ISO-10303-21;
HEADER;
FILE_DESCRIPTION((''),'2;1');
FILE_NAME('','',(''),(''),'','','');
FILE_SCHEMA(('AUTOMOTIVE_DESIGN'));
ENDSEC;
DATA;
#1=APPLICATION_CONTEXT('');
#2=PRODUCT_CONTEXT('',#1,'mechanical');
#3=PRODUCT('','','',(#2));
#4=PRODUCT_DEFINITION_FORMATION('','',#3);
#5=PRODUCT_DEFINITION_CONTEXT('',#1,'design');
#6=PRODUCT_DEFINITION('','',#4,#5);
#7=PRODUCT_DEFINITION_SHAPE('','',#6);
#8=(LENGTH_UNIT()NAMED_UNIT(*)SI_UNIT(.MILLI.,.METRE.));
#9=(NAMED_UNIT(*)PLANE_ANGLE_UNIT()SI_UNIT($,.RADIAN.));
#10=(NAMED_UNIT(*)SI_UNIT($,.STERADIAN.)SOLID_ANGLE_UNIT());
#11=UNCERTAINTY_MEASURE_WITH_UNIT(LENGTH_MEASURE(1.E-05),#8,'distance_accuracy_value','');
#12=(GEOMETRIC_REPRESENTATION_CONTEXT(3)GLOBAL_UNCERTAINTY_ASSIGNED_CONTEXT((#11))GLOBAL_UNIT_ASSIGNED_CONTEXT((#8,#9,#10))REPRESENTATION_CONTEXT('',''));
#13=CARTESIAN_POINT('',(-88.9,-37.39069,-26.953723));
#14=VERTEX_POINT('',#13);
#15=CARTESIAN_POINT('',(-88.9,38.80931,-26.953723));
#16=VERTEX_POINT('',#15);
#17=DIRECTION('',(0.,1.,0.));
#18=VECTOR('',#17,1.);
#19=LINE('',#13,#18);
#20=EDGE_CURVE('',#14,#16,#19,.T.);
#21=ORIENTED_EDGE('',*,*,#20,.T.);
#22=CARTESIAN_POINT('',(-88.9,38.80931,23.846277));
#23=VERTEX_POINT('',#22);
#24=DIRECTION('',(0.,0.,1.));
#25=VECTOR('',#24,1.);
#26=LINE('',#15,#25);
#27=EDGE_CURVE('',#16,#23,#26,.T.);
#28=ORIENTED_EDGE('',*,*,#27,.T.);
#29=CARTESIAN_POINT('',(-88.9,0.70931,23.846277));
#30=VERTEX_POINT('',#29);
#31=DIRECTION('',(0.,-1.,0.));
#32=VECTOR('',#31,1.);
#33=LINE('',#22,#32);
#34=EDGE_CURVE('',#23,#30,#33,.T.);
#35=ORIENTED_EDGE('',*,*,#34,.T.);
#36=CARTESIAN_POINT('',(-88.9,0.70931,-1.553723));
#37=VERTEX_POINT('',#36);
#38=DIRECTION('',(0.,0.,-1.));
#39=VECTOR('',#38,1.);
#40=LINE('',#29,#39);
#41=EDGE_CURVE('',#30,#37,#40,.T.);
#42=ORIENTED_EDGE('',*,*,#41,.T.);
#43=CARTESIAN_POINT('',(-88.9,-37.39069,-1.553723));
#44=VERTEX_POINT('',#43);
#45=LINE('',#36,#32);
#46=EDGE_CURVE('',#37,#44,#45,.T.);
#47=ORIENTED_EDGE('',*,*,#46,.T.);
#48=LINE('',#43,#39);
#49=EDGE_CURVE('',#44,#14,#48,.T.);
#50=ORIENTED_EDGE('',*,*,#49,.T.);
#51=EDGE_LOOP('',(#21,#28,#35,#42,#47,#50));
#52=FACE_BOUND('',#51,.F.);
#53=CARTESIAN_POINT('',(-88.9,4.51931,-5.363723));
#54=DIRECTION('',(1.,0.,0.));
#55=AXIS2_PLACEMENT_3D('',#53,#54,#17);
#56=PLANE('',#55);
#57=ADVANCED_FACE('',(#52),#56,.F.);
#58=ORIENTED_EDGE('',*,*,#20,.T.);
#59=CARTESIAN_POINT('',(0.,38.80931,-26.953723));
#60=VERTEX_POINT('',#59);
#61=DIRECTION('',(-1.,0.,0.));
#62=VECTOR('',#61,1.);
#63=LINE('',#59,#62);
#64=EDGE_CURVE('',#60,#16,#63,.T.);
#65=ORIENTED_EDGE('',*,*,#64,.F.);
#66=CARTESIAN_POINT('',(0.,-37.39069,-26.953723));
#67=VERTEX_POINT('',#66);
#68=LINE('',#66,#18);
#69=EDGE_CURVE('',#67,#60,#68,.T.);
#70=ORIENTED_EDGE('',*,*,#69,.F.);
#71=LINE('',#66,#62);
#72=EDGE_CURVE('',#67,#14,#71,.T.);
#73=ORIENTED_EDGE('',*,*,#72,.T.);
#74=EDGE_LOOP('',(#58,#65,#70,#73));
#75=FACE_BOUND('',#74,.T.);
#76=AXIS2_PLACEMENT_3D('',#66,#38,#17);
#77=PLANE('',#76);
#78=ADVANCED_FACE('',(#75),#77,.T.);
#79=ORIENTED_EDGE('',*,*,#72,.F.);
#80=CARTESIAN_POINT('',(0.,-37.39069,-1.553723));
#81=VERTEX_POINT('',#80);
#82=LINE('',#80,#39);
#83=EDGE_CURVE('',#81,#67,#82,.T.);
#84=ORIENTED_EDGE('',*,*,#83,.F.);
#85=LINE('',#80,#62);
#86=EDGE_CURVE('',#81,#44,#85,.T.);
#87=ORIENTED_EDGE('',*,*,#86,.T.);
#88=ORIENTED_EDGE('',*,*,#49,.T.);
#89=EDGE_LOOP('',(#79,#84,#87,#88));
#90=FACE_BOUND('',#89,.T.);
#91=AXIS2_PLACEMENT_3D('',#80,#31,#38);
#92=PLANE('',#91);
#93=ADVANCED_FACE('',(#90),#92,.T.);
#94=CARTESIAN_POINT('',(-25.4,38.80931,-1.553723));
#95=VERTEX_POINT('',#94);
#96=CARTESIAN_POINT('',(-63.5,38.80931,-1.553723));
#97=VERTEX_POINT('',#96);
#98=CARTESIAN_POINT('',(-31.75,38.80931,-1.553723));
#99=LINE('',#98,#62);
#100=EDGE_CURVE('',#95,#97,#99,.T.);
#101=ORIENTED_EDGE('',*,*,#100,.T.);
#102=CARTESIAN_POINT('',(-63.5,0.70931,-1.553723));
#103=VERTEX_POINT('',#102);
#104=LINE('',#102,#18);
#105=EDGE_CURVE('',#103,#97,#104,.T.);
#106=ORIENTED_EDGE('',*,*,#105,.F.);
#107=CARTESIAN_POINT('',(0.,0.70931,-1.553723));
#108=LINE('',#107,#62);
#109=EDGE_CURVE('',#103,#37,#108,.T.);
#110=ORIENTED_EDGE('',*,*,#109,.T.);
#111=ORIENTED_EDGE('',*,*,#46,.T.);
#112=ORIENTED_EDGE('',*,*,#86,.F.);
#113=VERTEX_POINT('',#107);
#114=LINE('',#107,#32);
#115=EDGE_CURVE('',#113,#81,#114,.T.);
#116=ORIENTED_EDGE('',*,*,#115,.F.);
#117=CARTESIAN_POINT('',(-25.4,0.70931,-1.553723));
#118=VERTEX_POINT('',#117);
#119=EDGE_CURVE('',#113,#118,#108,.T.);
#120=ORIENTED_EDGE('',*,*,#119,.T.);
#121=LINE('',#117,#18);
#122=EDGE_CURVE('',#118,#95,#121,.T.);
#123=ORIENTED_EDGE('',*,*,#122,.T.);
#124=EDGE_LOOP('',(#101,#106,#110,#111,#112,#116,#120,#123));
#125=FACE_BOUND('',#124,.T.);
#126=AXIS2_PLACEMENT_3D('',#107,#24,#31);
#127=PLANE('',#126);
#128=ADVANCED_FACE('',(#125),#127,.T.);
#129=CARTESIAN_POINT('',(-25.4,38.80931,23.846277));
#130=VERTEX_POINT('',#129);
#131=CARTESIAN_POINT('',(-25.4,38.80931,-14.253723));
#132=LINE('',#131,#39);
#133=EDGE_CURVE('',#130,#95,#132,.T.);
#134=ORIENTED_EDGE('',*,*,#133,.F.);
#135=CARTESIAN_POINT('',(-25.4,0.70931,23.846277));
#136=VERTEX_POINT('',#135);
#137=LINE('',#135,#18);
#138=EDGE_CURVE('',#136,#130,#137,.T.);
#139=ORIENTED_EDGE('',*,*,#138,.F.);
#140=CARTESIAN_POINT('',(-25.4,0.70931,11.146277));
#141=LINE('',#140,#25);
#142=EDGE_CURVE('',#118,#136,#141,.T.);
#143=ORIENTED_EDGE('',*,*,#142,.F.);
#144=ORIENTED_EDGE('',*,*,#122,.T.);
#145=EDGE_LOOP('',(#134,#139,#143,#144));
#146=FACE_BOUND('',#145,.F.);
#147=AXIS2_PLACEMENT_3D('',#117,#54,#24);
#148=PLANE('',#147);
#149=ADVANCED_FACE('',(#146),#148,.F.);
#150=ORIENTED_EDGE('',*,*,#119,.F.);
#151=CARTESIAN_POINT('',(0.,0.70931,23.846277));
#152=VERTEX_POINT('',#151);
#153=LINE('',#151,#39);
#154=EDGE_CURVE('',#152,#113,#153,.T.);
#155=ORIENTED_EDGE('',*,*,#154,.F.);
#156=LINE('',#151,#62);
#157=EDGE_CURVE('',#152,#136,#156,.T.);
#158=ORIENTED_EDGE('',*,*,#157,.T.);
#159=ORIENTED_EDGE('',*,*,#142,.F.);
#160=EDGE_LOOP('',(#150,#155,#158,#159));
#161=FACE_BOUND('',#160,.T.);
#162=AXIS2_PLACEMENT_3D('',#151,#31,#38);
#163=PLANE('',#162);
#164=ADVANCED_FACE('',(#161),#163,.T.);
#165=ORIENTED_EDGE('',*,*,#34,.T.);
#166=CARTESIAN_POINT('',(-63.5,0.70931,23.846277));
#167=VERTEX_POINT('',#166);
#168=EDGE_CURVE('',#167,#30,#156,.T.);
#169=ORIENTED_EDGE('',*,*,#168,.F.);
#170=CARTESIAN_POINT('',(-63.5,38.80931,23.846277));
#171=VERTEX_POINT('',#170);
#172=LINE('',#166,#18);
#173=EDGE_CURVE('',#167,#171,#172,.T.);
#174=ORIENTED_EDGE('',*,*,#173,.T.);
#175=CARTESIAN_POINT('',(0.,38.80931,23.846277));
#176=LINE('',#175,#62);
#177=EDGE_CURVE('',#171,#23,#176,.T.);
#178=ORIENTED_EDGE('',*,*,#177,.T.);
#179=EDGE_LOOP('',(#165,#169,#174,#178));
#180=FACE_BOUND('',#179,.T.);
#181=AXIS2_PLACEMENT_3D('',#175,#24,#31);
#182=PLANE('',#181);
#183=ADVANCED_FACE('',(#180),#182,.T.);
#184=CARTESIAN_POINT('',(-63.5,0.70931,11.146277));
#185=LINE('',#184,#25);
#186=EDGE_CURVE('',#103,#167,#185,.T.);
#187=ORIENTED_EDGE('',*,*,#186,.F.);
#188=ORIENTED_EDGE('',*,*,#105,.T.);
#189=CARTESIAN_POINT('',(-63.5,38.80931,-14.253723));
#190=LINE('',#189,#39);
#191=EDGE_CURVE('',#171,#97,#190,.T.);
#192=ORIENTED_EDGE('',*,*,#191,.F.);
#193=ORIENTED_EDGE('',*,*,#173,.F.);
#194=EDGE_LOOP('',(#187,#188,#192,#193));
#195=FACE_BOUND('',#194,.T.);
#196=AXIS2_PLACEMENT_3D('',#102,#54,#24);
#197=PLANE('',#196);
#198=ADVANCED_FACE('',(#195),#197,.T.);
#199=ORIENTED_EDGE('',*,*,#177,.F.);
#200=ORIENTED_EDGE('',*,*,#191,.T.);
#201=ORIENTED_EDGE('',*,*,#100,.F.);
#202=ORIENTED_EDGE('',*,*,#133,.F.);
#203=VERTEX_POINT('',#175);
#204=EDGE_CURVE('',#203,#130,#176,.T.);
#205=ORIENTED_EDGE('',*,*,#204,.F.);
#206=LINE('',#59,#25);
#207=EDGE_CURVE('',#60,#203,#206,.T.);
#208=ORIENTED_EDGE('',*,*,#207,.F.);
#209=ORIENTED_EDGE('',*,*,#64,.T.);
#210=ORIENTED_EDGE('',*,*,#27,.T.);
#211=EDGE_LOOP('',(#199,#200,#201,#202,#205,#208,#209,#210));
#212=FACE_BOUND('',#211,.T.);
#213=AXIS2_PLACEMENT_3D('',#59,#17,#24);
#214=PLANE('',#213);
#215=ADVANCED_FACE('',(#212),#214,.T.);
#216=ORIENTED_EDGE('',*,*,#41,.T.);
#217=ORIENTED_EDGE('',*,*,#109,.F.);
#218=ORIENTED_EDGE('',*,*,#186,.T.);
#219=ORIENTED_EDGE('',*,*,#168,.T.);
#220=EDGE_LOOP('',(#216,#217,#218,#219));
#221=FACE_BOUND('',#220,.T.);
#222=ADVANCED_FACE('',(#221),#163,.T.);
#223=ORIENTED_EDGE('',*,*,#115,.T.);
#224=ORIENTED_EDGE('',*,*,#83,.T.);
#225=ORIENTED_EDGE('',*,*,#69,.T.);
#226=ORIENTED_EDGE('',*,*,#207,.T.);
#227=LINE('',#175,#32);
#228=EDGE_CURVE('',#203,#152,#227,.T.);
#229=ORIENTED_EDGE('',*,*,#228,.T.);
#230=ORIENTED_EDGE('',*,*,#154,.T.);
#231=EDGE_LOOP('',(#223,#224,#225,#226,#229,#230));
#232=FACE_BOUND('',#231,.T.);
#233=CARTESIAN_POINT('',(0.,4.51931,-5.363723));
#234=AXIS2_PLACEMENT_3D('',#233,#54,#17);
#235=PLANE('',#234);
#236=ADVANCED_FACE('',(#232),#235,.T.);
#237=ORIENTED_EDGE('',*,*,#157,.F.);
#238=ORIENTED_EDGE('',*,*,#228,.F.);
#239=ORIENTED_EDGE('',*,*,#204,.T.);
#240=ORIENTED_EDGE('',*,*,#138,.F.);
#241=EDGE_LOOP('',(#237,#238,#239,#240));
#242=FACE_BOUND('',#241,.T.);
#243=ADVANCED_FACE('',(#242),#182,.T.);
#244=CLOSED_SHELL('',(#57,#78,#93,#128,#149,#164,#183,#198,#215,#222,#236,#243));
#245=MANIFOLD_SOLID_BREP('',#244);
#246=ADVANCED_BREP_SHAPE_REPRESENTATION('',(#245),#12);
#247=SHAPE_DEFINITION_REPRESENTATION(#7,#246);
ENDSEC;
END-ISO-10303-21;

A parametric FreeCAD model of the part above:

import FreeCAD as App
import Part
import Sketcher
from FreeCAD import Vector
Q = App.Units.Quantity


def add_polygon(sketch, points):
    """Adds a closed chain of lines whose ends are joined by coincident constraints."""
    first, n = sketch.GeometryCount, len(points)
    for a, b in zip(points, points[1:] + points[:1]):
        sketch.addGeometry(Part.LineSegment(App.Vector(*a, 0), App.Vector(*b, 0)), False)
    for i in range(n):
        sketch.addConstraint(Sketcher.Constraint("Coincident", first + i, 2, first + (i + 1) % n, 1))

doc = App.newDocument("Part")
body = doc.addObject("PartDesign::Body", "Body")

# Sketch on YZ plane
sketch1 = doc.addObject("Sketcher::SketchObject", "Sketch")
body.addObject(sketch1)
sketch1.AttachmentSupport = (doc.YZ_Plane, [""])
sketch1.MapMode = "FlatFace"
add_polygon(sketch1, [(-37.39069, -1.553723), (-37.39069, -26.953723), (38.80931, -26.953723), (38.80931, 23.846277), (0.70931, 23.846277), (0.70931, -1.553723)])  # lines 0-5
sketch1.addConstraint([
    Sketcher.Constraint("Vertical", 0),
    Sketcher.Constraint("Horizontal", 1),
    Sketcher.Constraint("Vertical", 2),
    Sketcher.Constraint("Horizontal", 3),
    Sketcher.Constraint("Vertical", 4),
    Sketcher.Constraint("Horizontal", 5),
    Sketcher.Constraint("Equal", 3, 5),
    Sketcher.Constraint("Equal", 0, 4),
    Sketcher.Constraint("DistanceX", 1, 1, 1, 2, Q("3 in")),
    Sketcher.Constraint("DistanceY", 0, 2, 0, 1, Q("1 in")),
    Sketcher.Constraint("DistanceX", 0, 2, -1, 1, 37.39069),
    Sketcher.Constraint("DistanceY", 0, 2, -1, 1, 26.953723),
])
pad1 = doc.addObject("PartDesign::Pad", "Pad")
body.addObject(pad1)
pad1.Profile = sketch1
pad1.Length = Q("3.5 in")
pad1.Reversed = True

# Sketch on XZ plane
sketch2 = doc.addObject("Sketcher::SketchObject", "Sketch001")
body.addObject(sketch2)
sketch2.AttachmentSupport = (doc.XZ_Plane, [""])
sketch2.MapMode = "FlatFace"
sketch2.AttachmentOffset = App.Placement(Vector(0, 0, -0.70931), App.Rotation())
add_polygon(sketch2, [(-63.5, 23.846277), (-63.5, -1.553723), (-25.4, -1.553723), (-25.4, 23.846277)])  # lines 0-3
sketch2.addConstraint([
    Sketcher.Constraint("Vertical", 0),
    Sketcher.Constraint("Horizontal", 1),
    Sketcher.Constraint("Vertical", 2),
    Sketcher.Constraint("Horizontal", 3),
    Sketcher.Constraint("DistanceY", 0, 2, 0, 1, Q("1 in")),
    Sketcher.Constraint("DistanceX", 1, 1, 1, 2, Q("1.5 in")),
    Sketcher.Constraint("DistanceX", 1, 2, -1, 1, Q("1 in")),
    Sketcher.Constraint("DistanceY", 0, 2, -1, 1, 1.553723),
])
pocket1 = doc.addObject("PartDesign::Pocket", "Pocket")
body.addObject(pocket1)
pocket1.Profile = sketch2
pocket1.Type = "ThroughAll"

doc.recompute()
